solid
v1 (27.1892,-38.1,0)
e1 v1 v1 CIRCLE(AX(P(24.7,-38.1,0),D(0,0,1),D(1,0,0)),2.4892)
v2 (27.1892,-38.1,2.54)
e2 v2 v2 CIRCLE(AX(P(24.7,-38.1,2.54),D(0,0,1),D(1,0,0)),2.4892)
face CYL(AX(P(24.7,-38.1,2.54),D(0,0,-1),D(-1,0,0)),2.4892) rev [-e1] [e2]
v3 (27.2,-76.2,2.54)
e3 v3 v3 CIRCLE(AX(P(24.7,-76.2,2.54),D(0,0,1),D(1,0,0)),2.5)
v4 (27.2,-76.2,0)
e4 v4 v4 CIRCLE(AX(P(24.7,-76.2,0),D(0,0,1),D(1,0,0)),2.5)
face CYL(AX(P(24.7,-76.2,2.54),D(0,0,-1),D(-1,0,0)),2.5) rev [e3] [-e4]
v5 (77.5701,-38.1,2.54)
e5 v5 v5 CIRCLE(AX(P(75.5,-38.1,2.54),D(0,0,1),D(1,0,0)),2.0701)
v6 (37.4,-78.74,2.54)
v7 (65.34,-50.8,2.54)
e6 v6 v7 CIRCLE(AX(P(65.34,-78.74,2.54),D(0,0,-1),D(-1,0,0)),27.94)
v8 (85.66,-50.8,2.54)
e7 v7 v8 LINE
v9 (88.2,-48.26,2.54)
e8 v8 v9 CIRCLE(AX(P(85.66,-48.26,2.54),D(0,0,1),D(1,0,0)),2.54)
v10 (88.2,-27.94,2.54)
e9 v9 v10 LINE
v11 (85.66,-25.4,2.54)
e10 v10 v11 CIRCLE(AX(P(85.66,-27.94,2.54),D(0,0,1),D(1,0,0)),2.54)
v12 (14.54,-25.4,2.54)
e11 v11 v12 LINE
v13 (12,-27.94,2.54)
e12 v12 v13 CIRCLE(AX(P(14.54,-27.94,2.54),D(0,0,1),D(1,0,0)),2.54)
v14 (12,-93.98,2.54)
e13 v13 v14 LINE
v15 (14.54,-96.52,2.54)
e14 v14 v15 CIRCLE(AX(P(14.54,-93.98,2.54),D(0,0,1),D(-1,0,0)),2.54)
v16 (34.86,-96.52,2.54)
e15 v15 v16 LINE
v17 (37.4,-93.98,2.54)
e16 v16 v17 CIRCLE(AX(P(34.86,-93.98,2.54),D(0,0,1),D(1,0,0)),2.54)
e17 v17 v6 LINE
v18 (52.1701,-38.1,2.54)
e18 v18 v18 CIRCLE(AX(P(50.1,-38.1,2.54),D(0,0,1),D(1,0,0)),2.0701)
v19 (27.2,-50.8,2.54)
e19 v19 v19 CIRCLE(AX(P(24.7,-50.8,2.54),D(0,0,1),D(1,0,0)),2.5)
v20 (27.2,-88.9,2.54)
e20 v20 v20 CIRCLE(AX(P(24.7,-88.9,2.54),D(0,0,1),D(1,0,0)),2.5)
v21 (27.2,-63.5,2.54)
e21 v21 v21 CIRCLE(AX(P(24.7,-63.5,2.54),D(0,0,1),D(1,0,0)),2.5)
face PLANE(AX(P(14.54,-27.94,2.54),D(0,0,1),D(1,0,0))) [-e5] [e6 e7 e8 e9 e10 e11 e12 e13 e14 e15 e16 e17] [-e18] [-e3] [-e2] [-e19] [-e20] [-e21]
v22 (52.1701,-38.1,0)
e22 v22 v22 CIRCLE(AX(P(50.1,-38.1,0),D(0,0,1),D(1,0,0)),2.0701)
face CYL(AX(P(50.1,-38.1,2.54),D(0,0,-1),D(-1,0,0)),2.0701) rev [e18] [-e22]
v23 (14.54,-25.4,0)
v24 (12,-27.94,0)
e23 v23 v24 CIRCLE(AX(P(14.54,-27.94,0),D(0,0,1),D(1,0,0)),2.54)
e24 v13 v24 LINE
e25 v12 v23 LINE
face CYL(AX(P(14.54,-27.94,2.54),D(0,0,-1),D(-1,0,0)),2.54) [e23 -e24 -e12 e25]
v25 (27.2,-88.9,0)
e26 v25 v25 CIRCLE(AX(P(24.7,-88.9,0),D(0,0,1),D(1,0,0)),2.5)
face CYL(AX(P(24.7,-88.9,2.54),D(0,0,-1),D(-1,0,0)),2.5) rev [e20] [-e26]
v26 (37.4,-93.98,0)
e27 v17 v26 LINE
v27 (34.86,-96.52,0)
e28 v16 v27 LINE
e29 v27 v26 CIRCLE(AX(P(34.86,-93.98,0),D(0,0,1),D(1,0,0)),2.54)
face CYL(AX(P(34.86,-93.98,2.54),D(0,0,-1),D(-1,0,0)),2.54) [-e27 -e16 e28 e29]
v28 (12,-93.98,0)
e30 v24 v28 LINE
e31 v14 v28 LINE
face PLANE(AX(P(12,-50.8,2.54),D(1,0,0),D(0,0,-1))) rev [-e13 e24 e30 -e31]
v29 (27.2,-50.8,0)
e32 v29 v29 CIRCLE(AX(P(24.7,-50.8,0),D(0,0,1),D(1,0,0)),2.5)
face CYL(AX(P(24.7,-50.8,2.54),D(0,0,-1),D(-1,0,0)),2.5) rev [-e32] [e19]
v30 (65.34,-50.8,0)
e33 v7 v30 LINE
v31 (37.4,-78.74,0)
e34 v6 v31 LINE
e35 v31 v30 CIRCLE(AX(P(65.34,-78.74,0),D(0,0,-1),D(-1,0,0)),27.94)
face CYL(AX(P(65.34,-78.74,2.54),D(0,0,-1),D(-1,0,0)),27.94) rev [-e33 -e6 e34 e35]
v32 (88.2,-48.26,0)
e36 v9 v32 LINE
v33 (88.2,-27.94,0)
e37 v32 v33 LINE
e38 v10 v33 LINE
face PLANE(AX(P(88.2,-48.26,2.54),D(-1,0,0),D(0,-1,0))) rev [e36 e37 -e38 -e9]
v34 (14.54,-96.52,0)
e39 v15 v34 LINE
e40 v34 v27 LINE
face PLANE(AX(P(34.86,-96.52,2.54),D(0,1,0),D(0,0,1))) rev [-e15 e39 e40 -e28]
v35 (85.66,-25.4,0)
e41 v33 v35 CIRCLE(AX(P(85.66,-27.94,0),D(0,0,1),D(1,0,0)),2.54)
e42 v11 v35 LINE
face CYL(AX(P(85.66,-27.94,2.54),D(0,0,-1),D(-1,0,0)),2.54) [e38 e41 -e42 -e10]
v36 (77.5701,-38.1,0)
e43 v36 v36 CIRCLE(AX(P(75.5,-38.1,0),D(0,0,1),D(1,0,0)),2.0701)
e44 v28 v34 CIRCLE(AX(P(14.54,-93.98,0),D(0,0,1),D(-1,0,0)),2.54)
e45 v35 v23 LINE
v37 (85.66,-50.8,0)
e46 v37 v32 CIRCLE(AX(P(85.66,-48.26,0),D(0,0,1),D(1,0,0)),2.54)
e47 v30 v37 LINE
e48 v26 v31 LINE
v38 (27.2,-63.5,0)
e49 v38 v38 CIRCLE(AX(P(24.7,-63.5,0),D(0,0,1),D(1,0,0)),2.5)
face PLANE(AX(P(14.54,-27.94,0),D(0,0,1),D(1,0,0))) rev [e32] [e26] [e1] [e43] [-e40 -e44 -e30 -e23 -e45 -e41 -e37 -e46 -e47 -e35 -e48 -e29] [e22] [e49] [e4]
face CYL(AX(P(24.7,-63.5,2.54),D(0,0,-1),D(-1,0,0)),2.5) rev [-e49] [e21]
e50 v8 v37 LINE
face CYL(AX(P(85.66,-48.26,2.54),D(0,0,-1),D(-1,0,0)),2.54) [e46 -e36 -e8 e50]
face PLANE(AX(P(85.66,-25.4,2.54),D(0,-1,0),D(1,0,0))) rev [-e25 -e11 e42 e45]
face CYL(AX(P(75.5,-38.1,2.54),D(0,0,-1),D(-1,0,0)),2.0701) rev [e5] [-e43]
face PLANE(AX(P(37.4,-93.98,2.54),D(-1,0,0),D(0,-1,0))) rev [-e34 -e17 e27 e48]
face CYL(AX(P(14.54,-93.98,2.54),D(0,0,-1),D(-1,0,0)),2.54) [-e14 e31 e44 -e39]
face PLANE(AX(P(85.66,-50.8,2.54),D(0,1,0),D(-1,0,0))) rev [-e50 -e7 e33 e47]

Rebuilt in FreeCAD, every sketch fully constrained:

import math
import FreeCAD as App
import Part
import Sketcher
Q = App.Units.Quantity

doc = App.newDocument("Part")
body = doc.addObject("PartDesign::Body", "Body")

sketch1 = body.newObject("Sketcher::SketchObject", "Sketch")
sketch1.AttachmentSupport = (doc.getObject("XY_Plane"), [""])
sketch1.MapMode = "FlatFace"
sketch1.addGeometry([
    Part.LineSegment(App.Vector(65.34, -50.8, 0), App.Vector(85.66, -50.8, 0)),
    Part.ArcOfCircle(Part.Circle(App.Vector(85.66, -48.26, 0), App.Vector(0, 0, 1), 2.54), math.radians(-90), math.radians(0)),
    Part.LineSegment(App.Vector(88.2, -48.26, 0), App.Vector(88.2, -27.94, 0)),
    Part.ArcOfCircle(Part.Circle(App.Vector(85.66, -27.94, 0), App.Vector(0, 0, 1), 2.54), math.radians(0), math.radians(90)),
    Part.LineSegment(App.Vector(85.66, -25.4, 0), App.Vector(14.54, -25.4, 0)),
    Part.ArcOfCircle(Part.Circle(App.Vector(14.54, -27.94, 0), App.Vector(0, 0, 1), 2.54), math.radians(90), math.radians(180)),
    Part.LineSegment(App.Vector(12, -27.94, 0), App.Vector(12, -93.98, 0)),
    Part.ArcOfCircle(Part.Circle(App.Vector(14.54, -93.98, 0), App.Vector(0, 0, 1), 2.54), math.radians(-180), math.radians(-90)),
    Part.LineSegment(App.Vector(14.54, -96.52, 0), App.Vector(34.86, -96.52, 0)),
    Part.ArcOfCircle(Part.Circle(App.Vector(34.86, -93.98, 0), App.Vector(0, 0, 1), 2.54), math.radians(-90), math.radians(0)),
    Part.LineSegment(App.Vector(37.4, -93.98, 0), App.Vector(37.4, -78.74, 0)),
    Part.ArcOfCircle(Part.Circle(App.Vector(65.34, -78.74, 0), App.Vector(0, 0, 1), 27.94), math.radians(90), math.radians(180)),
    Part.Circle(App.Vector(24.7, -88.9, 0), App.Vector(0, 0, 1), 2.5),
    Part.Circle(App.Vector(24.7, -76.2, 0), App.Vector(0, 0, 1), 2.5),
    Part.Circle(App.Vector(75.5, -38.1, 0), App.Vector(0, 0, 1), 2.0701),
    Part.Circle(App.Vector(50.1, -38.1, 0), App.Vector(0, 0, 1), 2.0701),
    Part.Circle(App.Vector(24.7, -63.5, 0), App.Vector(0, 0, 1), 2.5),
    Part.Circle(App.Vector(24.7, -50.8, 0), App.Vector(0, 0, 1), 2.5),
    Part.Circle(App.Vector(24.7, -38.1, 0), App.Vector(0, 0, 1), 2.4892),
], False)
sketch1.addConstraint([
    Sketcher.Constraint("Tangent", 0, 2, 1, 1),
    Sketcher.Constraint("Tangent", 1, 2, 2, 1),
    Sketcher.Constraint("Tangent", 2, 2, 3, 1),
    Sketcher.Constraint("Tangent", 3, 2, 4, 1),
    Sketcher.Constraint("Tangent", 4, 2, 5, 1),
    Sketcher.Constraint("Tangent", 5, 2, 6, 1),
    Sketcher.Constraint("Tangent", 6, 2, 7, 1),
    Sketcher.Constraint("Tangent", 7, 2, 8, 1),
    Sketcher.Constraint("Tangent", 8, 2, 9, 1),
    Sketcher.Constraint("Tangent", 9, 2, 10, 1),
    Sketcher.Constraint("Tangent", 10, 2, 11, 2),
    Sketcher.Constraint("Tangent", 11, 1, 0, 1),
    Sketcher.Constraint("Horizontal", 0),
    Sketcher.Constraint("Vertical", 2),
    Sketcher.Constraint("Horizontal", 4),
    Sketcher.Constraint("Vertical", 6),
    Sketcher.Constraint("Horizontal", 8),
    Sketcher.Constraint("Vertical", 10),
    Sketcher.Constraint("Equal", 1, 3),
    Sketcher.Constraint("Equal", 3, 5),
    Sketcher.Constraint("Equal", 5, 7),
    Sketcher.Constraint("Equal", 7, 9),
    Sketcher.Constraint("Equal", 12, 13),
    Sketcher.Constraint("Equal", 14, 15),
    Sketcher.Constraint("Equal", 13, 16),
    Sketcher.Constraint("Equal", 16, 17),
    Sketcher.Constraint("Horizontal", 14, 3, 15, 3),
    Sketcher.Constraint("Horizontal", 15, 3, 18, 3),
    Sketcher.Constraint("Horizontal", 17, 3, 0, 2),
    Sketcher.Constraint("Vertical", 12, 3, 13, 3),
    Sketcher.Constraint("Vertical", 13, 3, 16, 3),
    Sketcher.Constraint("Vertical", 16, 3, 17, 3),
    Sketcher.Constraint("Vertical", 17, 3, 18, 3),
    Sketcher.Constraint("Equal", 0, 8),
    Sketcher.Constraint("Equal", 8, 2),
    Sketcher.Constraint("Radius", 1, Q("0.1 in")),
    Sketcher.Constraint("Radius", 11, Q("1.1 in")),
    Sketcher.Constraint("Diameter", 14, Q("0.163 in")),
    Sketcher.Constraint("Diameter", 18, Q("0.196 in")),
    Sketcher.Constraint("DistanceX", 0, 1, 0, 2, Q("0.8 in")),
    Sketcher.Constraint("DistanceY", 6, 2, 6, 1, Q("2.6 in")),
    Sketcher.Constraint("DistanceY", 13, 3, -1, 1, Q("3 in")),
    Sketcher.Constraint("DistanceY", 17, 3, -1, 1, Q("2 in")),
    Sketcher.Constraint("DistanceX", 13, 3, 14, 3, Q("2 in")),
    Sketcher.Constraint("DistanceX", 15, 3, 14, 3, Q("1 in")),
    Sketcher.Constraint("DistanceY", 12, 3, 16, 3, Q("1 in")),
    Sketcher.Constraint("DistanceY", 16, 3, 15, 3, Q("1 in")),
    Sketcher.Constraint("DistanceY", 12, 3, -1, 1, Q("3.5 in")),
    Sketcher.Constraint("DistanceX", 7, 3, 12, 3, Q("0.4 in")),
    Sketcher.Constraint("Diameter", 12, 5.0),
    Sketcher.Constraint("DistanceX", -1, 1, 1, 3, 85.66),
])
pad1 = body.newObject("PartDesign::Pad", "Pad")
pad1.Profile = sketch1
pad1.Length = Q("0.1 in")

doc.recompute()
